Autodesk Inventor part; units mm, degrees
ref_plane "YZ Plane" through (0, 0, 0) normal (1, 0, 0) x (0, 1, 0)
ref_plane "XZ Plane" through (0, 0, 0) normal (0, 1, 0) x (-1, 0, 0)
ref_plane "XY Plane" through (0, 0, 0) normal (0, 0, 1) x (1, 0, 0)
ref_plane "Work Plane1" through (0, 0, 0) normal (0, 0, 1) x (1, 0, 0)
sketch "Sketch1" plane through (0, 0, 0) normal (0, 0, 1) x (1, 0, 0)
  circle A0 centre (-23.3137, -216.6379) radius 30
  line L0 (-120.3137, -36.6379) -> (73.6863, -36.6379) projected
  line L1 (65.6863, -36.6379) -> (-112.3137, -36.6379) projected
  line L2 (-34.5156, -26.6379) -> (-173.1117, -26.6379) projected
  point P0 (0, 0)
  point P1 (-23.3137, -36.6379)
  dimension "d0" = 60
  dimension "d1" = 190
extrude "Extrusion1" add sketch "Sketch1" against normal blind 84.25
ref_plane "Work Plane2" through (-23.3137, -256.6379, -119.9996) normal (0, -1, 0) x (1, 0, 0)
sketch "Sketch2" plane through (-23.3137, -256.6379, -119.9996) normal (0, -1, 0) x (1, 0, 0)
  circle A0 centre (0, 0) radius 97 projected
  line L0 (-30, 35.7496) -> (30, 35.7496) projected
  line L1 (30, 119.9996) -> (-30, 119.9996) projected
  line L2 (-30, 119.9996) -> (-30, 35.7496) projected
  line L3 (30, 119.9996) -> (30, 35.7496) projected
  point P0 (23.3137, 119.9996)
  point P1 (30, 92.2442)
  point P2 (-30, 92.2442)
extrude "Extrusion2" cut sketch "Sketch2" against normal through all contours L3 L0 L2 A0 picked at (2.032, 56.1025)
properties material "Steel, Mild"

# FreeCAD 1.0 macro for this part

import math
import FreeCAD as App
import Part
import Sketcher

V = App.Vector
Q = App.Units.Quantity

doc = App.newDocument("Part")
params = doc.addObject("Spreadsheet::Sheet", "Params")
for row, (alias, value) in enumerate([
    ("sketch1_diameter", "60 mm"),
    ("pad1_length", "84.25 mm"),
    ("sketch2_radius", "97 mm"),
    ("sketch2_width", "60 mm"),
], start=1):
    params.set(f"A{row}", alias)
    params.set(f"B{row}", "=" + value)
    params.setAlias(f"B{row}", alias)

body = doc.addObject("PartDesign::Body", "Body")

# Sketch on XY plane
sketch1 = body.newObject("Sketcher::SketchObject", "Sketch")
sketch1.AttachmentSupport = (doc.getObject("XY_Plane"), [""])
sketch1.MapMode = "FlatFace"
sketch1.addGeometry(Part.Circle(V(-23, -217, 0), V(0, 0, 1), 30), False)
sketch1.addConstraint([
    Sketcher.Constraint("Diameter", 0, Q("60 mm")),
    Sketcher.Constraint("DistanceY", 0, 3, -1, 1, Q("216.638 mm")),
    Sketcher.Constraint("DistanceX", 0, 3, -1, 1, Q("23.3137 mm")),
])
sketch1.setExpression("Constraints[0]", "Params.sketch1_diameter")
pad1 = body.newObject("PartDesign::Pad", "Pad")
pad1.Profile = sketch1
pad1.setExpression("Length", "Params.pad1_length")
pad1.Reversed = True

# Sketch on XZ plane
sketch2 = body.newObject("Sketcher::SketchObject", "Sketch001")
sketch2.AttachmentSupport = (doc.getObject("XZ_Plane"), [""])
sketch2.MapMode = "FlatFace"
sketch2.AttachmentOffset = App.Placement(V(0, 0, 256.6379), App.Rotation())
sketch2.addGeometry([
    Part.LineSegment(V(7, -84, 0), V(7, -28, 0)),
    Part.ArcOfCircle(Part.Circle(V(-23, -120, 0), V(0, 0, 1), 97), math.radians(72), math.radians(108)),
    Part.LineSegment(V(-53, -28, 0), V(-53, -84, 0)),
    Part.LineSegment(V(-53, -84, 0), V(7, -84, 0)),
], False)
sketch2.addConstraint([
    Sketcher.Constraint("Coincident", 0, 2, 1, 1),
    Sketcher.Constraint("Coincident", 1, 2, 2, 1),
    Sketcher.Constraint("Coincident", 2, 2, 3, 1),
    Sketcher.Constraint("Coincident", 3, 2, 0, 1),
    Sketcher.Constraint("Vertical", 0),
    Sketcher.Constraint("Vertical", 2),
    Sketcher.Constraint("Horizontal", 3),
    Sketcher.Constraint("Horizontal", 0, 2, 1, 2),
    Sketcher.Constraint("Radius", 1, Q("97 mm")),
    Sketcher.Constraint("DistanceX", 3, 1, 3, 2, Q("60 mm")),
    Sketcher.Constraint("DistanceY", 2, 2, -1, 1, Q("84.25 mm")),
    Sketcher.Constraint("DistanceY", 0, 1, 0, 2, Q("56.4946 mm")),
    Sketcher.Constraint("DistanceX", 1, 3, -1, 1, Q("23.3137 mm")),
])
sketch2.setExpression("Constraints[8]", "Params.sketch2_radius")
sketch2.setExpression("Constraints[9]", "Params.sketch2_width")
pocket1 = body.newObject("PartDesign::Pocket", "Pocket")
pocket1.Profile = sketch2
pocket1.Type = "ThroughAll"

doc.recompute()
